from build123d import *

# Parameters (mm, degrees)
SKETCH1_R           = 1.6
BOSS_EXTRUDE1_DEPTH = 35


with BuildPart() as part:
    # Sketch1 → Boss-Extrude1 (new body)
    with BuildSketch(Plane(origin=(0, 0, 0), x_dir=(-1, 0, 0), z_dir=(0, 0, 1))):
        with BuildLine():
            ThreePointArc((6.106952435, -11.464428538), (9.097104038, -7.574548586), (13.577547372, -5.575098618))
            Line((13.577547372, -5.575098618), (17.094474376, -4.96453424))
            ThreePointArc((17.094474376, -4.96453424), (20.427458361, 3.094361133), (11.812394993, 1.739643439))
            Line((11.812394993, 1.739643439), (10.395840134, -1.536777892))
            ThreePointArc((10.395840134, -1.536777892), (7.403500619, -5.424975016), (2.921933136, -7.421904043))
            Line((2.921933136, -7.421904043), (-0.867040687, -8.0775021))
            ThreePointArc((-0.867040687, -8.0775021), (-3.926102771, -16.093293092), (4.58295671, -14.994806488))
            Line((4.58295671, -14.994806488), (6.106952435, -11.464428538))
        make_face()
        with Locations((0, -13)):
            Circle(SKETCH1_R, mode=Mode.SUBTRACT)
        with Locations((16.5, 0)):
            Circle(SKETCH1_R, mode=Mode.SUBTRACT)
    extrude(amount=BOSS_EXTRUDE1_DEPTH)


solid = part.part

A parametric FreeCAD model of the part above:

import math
import FreeCAD as App
import Part
import Sketcher
Q = App.Units.Quantity

doc = App.newDocument("Part")
body = doc.addObject("PartDesign::Body", "Body")

sketch1 = body.newObject("Sketcher::SketchObject", "Sketch")
sketch1.AttachmentSupport = (doc.getObject("XY_Plane"), [""])
sketch1.MapMode = "FlatFace"
sketch1.addGeometry([
    Part.ArcOfCircle(Part.Circle(App.Vector(-15.288036, 15.427724, 0), App.Vector(0, 0, 1), 10), math.radians(-80.151195), math.radians(-23.348921)),
    Part.LineSegment(App.Vector(-13.577547, 5.575099, 0), App.Vector(-17.094474, 4.964534, 0)),
    Part.ArcOfCircle(Part.Circle(App.Vector(-16.5, 0, 0), App.Vector(0, 0, 1), 5), math.radians(96.828327), math.radians(339.639323)),
    Part.LineSegment(App.Vector(-11.812395, -1.739643, 0), App.Vector(-10.39584, 1.536778, 0)),
    Part.ArcOfCircle(Part.Circle(App.Vector(-1.216988, -2.431682, 0), App.Vector(0, 0, 1), 10), math.radians(99.816572), math.radians(156.618845)),
    Part.LineSegment(App.Vector(-2.921933, 7.421904, 0), App.Vector(0.867041, 8.077502, 0)),
    Part.ArcOfCircle(Part.Circle(App.Vector(0, 13, 0), App.Vector(0, 0, 1), 4.998274), math.radians(-80.010482), math.radians(156.478132)),
    Part.LineSegment(App.Vector(-4.582957, 14.994806, 0), App.Vector(-6.106952, 11.464429, 0)),
    Part.Circle(App.Vector(0, 13, 0), App.Vector(0, 0, 1), 1.6),
    Part.Circle(App.Vector(-16.5, 0, 0), App.Vector(0, 0, 1), 1.6),
], False)
sketch1.addConstraint([
    Sketcher.Constraint("Tangent", 0, 1, 1, 1),
    Sketcher.Constraint("Coincident", 1, 2, 2, 1),
    Sketcher.Constraint("Coincident", 2, 2, 3, 1),
    Sketcher.Constraint("Tangent", 3, 2, 4, 2),
    Sketcher.Constraint("Tangent", 4, 1, 5, 1),
    Sketcher.Constraint("Coincident", 5, 2, 6, 1),
    Sketcher.Constraint("Coincident", 6, 2, 7, 1),
    Sketcher.Constraint("Tangent", 7, 2, 0, 2),
    Sketcher.Constraint("Coincident", 8, 3, 6, 3),
    Sketcher.Constraint("Coincident", 9, 3, 2, 3),
    Sketcher.Constraint("Equal", 0, 4),
    Sketcher.Constraint("Equal", 8, 9),
    Sketcher.Constraint("PointOnObject", 2, 3, -1),
    Sketcher.Constraint("PointOnObject", 6, 3, -2),
    Sketcher.Constraint("Equal", 1, 3),
    Sketcher.Constraint("Equal", 5, 7),
    Sketcher.Constraint("Radius", 0, Q("10 mm")),
    Sketcher.Constraint("Radius", 2, Q("5 mm")),
    Sketcher.Constraint("Diameter", 8, Q("3.2 mm")),
    Sketcher.Constraint("DistanceY", -1, 1, 6, 3, Q("13 mm")),
    Sketcher.Constraint("DistanceX", 2, 3, -1, 1, Q("16.5 mm")),
    Sketcher.Constraint("Radius", 6, Q("4.998274 mm")),
    Sketcher.Constraint("DistanceY", -1, 1, 0, 1, Q("5.575099 mm")),
    Sketcher.Constraint("DistanceY", 4, 1, 5, 2, Q("0.655598 mm")),
    Sketcher.Constraint("DistanceX", 4, 3, -1, 1, Q("1.216988 mm")),
    Sketcher.Constraint("DistanceX", 3, 2, -1, 1, Q("10.39584 mm")),
    Sketcher.Constraint("DistanceX", -1, 1, 5, 2, Q("0.867041 mm")),
    Sketcher.Constraint("DistanceY", -1, 1, 7, 2, Q("11.464429 mm")),
])
pad1 = body.newObject("PartDesign::Pad", "Pad")
pad1.Profile = sketch1
pad1.Length = 35

doc.recompute()
